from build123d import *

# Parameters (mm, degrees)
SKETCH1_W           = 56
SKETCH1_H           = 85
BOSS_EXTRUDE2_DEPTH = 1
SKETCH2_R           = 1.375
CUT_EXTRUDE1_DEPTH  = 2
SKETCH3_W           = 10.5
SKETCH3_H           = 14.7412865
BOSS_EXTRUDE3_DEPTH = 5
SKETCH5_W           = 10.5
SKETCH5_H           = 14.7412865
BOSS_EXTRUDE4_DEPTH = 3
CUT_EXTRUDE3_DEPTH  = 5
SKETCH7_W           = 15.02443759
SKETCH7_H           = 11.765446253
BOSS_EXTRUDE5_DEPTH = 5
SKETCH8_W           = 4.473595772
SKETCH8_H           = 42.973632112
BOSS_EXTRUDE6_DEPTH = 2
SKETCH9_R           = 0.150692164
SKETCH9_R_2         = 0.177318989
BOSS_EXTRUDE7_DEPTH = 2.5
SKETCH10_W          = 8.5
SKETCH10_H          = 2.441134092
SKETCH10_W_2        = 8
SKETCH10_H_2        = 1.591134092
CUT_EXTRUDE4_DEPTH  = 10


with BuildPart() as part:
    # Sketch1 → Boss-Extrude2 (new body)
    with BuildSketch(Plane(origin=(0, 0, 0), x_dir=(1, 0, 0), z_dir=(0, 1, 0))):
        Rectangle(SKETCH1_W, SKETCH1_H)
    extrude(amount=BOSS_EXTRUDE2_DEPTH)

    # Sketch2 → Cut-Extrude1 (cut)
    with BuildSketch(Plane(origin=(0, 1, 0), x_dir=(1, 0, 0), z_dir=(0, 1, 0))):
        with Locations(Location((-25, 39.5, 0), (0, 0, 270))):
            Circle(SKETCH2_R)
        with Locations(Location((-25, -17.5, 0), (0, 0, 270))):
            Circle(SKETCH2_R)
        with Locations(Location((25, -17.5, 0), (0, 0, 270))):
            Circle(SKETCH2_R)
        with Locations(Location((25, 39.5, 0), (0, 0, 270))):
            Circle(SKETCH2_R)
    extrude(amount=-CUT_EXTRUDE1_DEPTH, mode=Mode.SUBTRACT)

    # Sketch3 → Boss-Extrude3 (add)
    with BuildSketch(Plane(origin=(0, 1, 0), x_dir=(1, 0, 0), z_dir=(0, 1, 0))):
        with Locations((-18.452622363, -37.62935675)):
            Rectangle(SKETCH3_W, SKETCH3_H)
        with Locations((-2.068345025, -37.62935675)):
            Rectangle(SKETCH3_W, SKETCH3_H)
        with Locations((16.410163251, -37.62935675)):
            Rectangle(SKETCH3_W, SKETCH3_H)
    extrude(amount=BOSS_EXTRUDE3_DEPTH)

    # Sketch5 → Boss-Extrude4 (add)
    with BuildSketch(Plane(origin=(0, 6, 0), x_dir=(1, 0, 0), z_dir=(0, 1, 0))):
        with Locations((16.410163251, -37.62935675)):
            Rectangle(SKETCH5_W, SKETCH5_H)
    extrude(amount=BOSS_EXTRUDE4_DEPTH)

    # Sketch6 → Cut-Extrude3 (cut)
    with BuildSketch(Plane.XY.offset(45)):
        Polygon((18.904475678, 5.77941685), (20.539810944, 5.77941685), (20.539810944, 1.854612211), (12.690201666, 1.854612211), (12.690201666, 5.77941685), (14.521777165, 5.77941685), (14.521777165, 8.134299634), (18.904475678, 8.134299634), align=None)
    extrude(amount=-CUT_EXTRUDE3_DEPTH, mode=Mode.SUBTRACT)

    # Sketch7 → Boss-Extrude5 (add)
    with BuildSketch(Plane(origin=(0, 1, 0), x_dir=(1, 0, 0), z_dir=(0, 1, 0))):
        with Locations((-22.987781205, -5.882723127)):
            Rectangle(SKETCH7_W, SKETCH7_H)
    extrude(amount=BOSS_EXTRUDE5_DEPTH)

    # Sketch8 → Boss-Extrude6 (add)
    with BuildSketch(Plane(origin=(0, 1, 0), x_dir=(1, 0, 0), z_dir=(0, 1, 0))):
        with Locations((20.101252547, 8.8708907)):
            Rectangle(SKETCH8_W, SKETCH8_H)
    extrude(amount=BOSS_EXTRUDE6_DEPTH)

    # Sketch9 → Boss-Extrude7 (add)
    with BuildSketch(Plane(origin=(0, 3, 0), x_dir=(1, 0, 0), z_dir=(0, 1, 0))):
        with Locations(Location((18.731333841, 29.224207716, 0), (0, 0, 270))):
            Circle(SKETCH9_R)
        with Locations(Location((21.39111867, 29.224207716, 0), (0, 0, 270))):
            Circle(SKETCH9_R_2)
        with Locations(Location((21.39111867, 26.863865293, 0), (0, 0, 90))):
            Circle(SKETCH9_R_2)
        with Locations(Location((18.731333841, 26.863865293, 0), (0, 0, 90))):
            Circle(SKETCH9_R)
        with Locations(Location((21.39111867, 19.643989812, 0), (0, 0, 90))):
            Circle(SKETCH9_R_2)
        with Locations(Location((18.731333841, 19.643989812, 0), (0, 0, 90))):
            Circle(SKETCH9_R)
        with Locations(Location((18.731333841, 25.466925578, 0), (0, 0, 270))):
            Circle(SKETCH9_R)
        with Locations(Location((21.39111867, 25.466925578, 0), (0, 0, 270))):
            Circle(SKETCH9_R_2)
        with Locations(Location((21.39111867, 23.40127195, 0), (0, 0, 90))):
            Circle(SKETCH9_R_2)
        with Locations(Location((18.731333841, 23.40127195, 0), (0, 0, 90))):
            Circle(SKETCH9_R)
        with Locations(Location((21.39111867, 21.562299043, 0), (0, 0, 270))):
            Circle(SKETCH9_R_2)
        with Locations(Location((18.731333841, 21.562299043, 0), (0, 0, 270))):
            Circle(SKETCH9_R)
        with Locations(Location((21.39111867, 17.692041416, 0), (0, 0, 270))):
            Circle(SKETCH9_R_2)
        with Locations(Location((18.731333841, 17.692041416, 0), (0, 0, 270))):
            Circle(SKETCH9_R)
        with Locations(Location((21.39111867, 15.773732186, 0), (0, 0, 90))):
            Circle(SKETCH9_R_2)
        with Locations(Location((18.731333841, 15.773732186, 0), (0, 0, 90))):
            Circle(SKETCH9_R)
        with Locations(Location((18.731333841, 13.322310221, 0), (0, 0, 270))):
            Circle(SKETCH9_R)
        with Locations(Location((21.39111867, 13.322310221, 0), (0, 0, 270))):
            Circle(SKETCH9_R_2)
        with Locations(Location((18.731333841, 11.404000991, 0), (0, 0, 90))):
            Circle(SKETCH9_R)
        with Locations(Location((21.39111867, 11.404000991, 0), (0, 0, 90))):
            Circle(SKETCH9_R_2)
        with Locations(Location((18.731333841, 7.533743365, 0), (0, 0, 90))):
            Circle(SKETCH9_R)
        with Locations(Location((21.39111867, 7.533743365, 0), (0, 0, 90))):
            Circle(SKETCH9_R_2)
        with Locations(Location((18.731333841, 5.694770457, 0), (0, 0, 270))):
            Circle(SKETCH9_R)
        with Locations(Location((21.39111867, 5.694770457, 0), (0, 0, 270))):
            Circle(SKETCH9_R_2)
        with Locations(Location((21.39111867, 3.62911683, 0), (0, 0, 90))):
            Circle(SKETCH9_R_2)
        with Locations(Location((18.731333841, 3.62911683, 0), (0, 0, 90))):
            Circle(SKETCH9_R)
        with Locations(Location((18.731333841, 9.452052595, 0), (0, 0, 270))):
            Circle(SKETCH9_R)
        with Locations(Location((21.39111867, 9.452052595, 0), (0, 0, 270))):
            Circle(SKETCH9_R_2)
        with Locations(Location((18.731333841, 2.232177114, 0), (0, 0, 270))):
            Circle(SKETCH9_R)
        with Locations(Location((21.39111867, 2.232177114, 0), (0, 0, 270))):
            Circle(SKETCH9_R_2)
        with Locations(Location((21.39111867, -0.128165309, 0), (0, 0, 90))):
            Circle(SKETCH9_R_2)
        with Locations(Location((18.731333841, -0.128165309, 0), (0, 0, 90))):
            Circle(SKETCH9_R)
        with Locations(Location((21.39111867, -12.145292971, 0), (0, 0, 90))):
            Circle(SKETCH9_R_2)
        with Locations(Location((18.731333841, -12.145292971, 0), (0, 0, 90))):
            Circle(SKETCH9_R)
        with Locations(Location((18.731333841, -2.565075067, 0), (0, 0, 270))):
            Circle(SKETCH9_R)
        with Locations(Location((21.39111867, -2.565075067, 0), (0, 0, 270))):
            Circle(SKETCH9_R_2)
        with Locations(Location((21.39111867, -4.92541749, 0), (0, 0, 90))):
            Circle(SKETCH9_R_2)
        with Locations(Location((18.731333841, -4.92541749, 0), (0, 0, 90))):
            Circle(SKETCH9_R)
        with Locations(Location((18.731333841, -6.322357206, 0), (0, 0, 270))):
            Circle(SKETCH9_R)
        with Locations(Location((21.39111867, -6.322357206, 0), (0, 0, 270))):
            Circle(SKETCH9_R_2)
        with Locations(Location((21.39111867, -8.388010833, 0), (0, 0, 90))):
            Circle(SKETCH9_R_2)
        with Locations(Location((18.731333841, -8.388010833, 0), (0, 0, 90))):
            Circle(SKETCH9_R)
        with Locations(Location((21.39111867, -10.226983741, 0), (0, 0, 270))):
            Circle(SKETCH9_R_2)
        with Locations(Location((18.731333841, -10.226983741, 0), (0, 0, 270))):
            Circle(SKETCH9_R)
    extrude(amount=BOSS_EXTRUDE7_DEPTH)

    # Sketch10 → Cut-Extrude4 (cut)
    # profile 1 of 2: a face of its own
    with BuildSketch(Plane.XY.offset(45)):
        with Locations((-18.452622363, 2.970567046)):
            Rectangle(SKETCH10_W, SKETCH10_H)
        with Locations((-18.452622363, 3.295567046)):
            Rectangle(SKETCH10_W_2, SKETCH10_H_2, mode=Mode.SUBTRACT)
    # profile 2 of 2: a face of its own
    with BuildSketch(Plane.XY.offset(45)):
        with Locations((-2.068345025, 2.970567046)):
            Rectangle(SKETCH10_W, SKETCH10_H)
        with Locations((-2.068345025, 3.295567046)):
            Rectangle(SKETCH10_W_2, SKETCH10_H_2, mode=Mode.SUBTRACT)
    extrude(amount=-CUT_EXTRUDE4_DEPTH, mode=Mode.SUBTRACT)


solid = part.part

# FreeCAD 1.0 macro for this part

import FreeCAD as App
import Part
import Sketcher
Q = App.Units.Quantity

doc = App.newDocument("Part")
body = doc.addObject("PartDesign::Body", "Body")

# Sketch on XZ plane
sketch1 = body.newObject("Sketcher::SketchObject", "Sketch")
sketch1.AttachmentSupport = (doc.getObject("XZ_Plane"), [""])
sketch1.MapMode = "FlatFace"
sketch1.addGeometry([
    Part.LineSegment(App.Vector(-28, -42.5, 0), App.Vector(-28, 42.5, 0)),
    Part.LineSegment(App.Vector(-28, 42.5, 0), App.Vector(28, 42.5, 0)),
    Part.LineSegment(App.Vector(28, 42.5, 0), App.Vector(28, -42.5, 0)),
    Part.LineSegment(App.Vector(28, -42.5, 0), App.Vector(-28, -42.5, 0)),
], False)
sketch1.addConstraint([
    Sketcher.Constraint("Coincident", 0, 2, 1, 1),
    Sketcher.Constraint("Coincident", 1, 2, 2, 1),
    Sketcher.Constraint("Coincident", 2, 2, 3, 1),
    Sketcher.Constraint("Coincident", 3, 2, 0, 1),
    Sketcher.Constraint("Vertical", 0),
    Sketcher.Constraint("Horizontal", 1),
    Sketcher.Constraint("Vertical", 2),
    Sketcher.Constraint("Horizontal", 3),
    Sketcher.Constraint("Symmetric", 0, 2, 2, 2, -1, 1),
    Sketcher.Constraint("DistanceX", 1, 1, 1, 2, Q("56 mm")),
    Sketcher.Constraint("DistanceY", 0, 1, 0, 2, Q("85 mm")),
])
pad1 = body.newObject("PartDesign::Pad", "Pad")
pad1.Profile = sketch1
pad1.Length = 1
pad1.Reversed = True

# Sketch on XZ plane
sketch2 = body.newObject("Sketcher::SketchObject", "Sketch001")
sketch2.AttachmentSupport = (doc.getObject("XZ_Plane"), [""])
sketch2.MapMode = "FlatFace"
sketch2.AttachmentOffset = App.Placement(App.Vector(0, 0, -1), App.Rotation())
sketch2.addGeometry([
    Part.Circle(App.Vector(-25, -39.5, 0), App.Vector(0, 0, 1), 1.375),
    Part.Circle(App.Vector(-25, 17.5, 0), App.Vector(0, 0, 1), 1.375),
    Part.Circle(App.Vector(25, 17.5, 0), App.Vector(0, 0, 1), 1.375),
    Part.Circle(App.Vector(25, -39.5, 0), App.Vector(0, 0, 1), 1.375),
], False)
sketch2.addConstraint([
    Sketcher.Constraint("Equal", 0, 1),
    Sketcher.Constraint("Equal", 1, 2),
    Sketcher.Constraint("Equal", 2, 3),
    Sketcher.Constraint("Symmetric", 1, 3, 2, 3, -2),
    Sketcher.Constraint("Symmetric", 0, 3, 3, 3, -2),
    Sketcher.Constraint("Vertical", 0, 3, 1, 3),
    Sketcher.Constraint("Diameter", 0, Q("2.75 mm")),
    Sketcher.Constraint("DistanceX", 0, 3, -1, 1, Q("25 mm")),
    Sketcher.Constraint("DistanceY", 0, 3, 1, 3, Q("57 mm")),
    Sketcher.Constraint("DistanceY", 0, 3, -1, 1, Q("39.5 mm")),
])
pocket1 = body.newObject("PartDesign::Pocket", "Pocket")
pocket1.Profile = sketch2
pocket1.Length = 2
pocket1.Reversed = True

# Sketch on XZ plane
sketch3 = body.newObject("Sketcher::SketchObject", "Sketch002")
sketch3.AttachmentSupport = (doc.getObject("XZ_Plane"), [""])
sketch3.MapMode = "FlatFace"
sketch3.AttachmentOffset = App.Placement(App.Vector(0, 0, -1), App.Rotation())
sketch3.addGeometry([
    Part.LineSegment(App.Vector(-23.702622, 30.258713, 0), App.Vector(-23.702622, 45, 0)),  # 0
    Part.LineSegment(App.Vector(-23.702622, 45, 0), App.Vector(-13.202622, 45, 0)),  # 1
    Part.LineSegment(App.Vector(-13.202622, 45, 0), App.Vector(-13.202622, 30.258713, 0)),  # 2
    Part.LineSegment(App.Vector(-13.202622, 30.258713, 0), App.Vector(-23.702622, 30.258713, 0)),  # 3
    Part.LineSegment(App.Vector(-7.318345, 30.258713, 0), App.Vector(-7.318345, 45, 0)),  # 4
    Part.LineSegment(App.Vector(-7.318345, 45, 0), App.Vector(3.181655, 45, 0)),  # 5
    Part.LineSegment(App.Vector(3.181655, 45, 0), App.Vector(3.181655, 30.258713, 0)),  # 6
    Part.LineSegment(App.Vector(3.181655, 30.258713, 0), App.Vector(-7.318345, 30.258713, 0)),  # 7
    Part.LineSegment(App.Vector(11.160163, 30.258713, 0), App.Vector(11.160163, 45, 0)),  # 8
    Part.LineSegment(App.Vector(11.160163, 45, 0), App.Vector(21.660163, 45, 0)),  # 9
    Part.LineSegment(App.Vector(21.660163, 45, 0), App.Vector(21.660163, 30.258713, 0)),  # 10
    Part.LineSegment(App.Vector(21.660163, 30.258713, 0), App.Vector(11.160163, 30.258713, 0)),  # 11
], False)
sketch3.addConstraint([
    Sketcher.Constraint("Coincident", 0, 2, 1, 1),
    Sketcher.Constraint("Coincident", 1, 2, 2, 1),
    Sketcher.Constraint("Coincident", 2, 2, 3, 1),
    Sketcher.Constraint("Coincident", 3, 2, 0, 1),
    Sketcher.Constraint("Coincident", 4, 2, 5, 1),
    Sketcher.Constraint("Coincident", 5, 2, 6, 1),
    Sketcher.Constraint("Coincident", 6, 2, 7, 1),
    Sketcher.Constraint("Coincident", 7, 2, 4, 1),
    Sketcher.Constraint("Coincident", 8, 2, 9, 1),
    Sketcher.Constraint("Coincident", 9, 2, 10, 1),
    Sketcher.Constraint("Coincident", 10, 2, 11, 1),
    Sketcher.Constraint("Coincident", 11, 2, 8, 1),
    Sketcher.Constraint("Vertical", 0),
    Sketcher.Constraint("Horizontal", 1),
    Sketcher.Constraint("Vertical", 2),
    Sketcher.Constraint("Horizontal", 3),
    Sketcher.Constraint("Vertical", 4),
    Sketcher.Constraint("Horizontal", 5),
    Sketcher.Constraint("Vertical", 6),
    Sketcher.Constraint("Horizontal", 7),
    Sketcher.Constraint("Vertical", 8),
    Sketcher.Constraint("Horizontal", 9),
    Sketcher.Constraint("Vertical", 10),
    Sketcher.Constraint("Horizontal", 11),
    Sketcher.Constraint("Horizontal", 1, 2, 4, 2),
    Sketcher.Constraint("Horizontal", 3, 2, 6, 2),
    Sketcher.Constraint("Horizontal", 5, 2, 8, 2),
    Sketcher.Constraint("Horizontal", 7, 2, 10, 2),
    Sketcher.Constraint("Equal", 3, 5),
    Sketcher.Constraint("Equal", 7, 9),
    Sketcher.Constraint("DistanceX", 1, 1, 1, 2, Q("10.5 mm")),
    Sketcher.Constraint("DistanceY", -1, 1, 0, 2, Q("45 mm")),
    Sketcher.Constraint("DistanceY", 0, 1, 0, 2, Q("14.741287 mm")),
    Sketcher.Constraint("DistanceX", 5, 2, 8, 2, Q("7.978508 mm")),
    Sketcher.Constraint("DistanceX", 0, 2, -1, 1, Q("23.702622 mm")),
    Sketcher.Constraint("DistanceX", 4, 2, -1, 1, Q("7.318345 mm")),
])
pad2 = body.newObject("PartDesign::Pad", "Pad001")
pad2.Profile = sketch3
pad2.Length = 5
pad2.Reversed = True

# Sketch on XZ plane
sketch4 = body.newObject("Sketcher::SketchObject", "Sketch003")
sketch4.AttachmentSupport = (doc.getObject("XZ_Plane"), [""])
sketch4.MapMode = "FlatFace"
sketch4.AttachmentOffset = App.Placement(App.Vector(0, 0, -6), App.Rotation())
sketch4.addGeometry([
    Part.LineSegment(App.Vector(11.160163, 30.258713, 0), App.Vector(11.160163, 45, 0)),
    Part.LineSegment(App.Vector(11.160163, 45, 0), App.Vector(21.660163, 45, 0)),
    Part.LineSegment(App.Vector(21.660163, 45, 0), App.Vector(21.660163, 30.258713, 0)),
    Part.LineSegment(App.Vector(21.660163, 30.258713, 0), App.Vector(11.160163, 30.258713, 0)),
], False)
sketch4.addConstraint([
    Sketcher.Constraint("Coincident", 0, 2, 1, 1),
    Sketcher.Constraint("Coincident", 1, 2, 2, 1),
    Sketcher.Constraint("Coincident", 2, 2, 3, 1),
    Sketcher.Constraint("Coincident", 3, 2, 0, 1),
    Sketcher.Constraint("Vertical", 0),
    Sketcher.Constraint("Horizontal", 1),
    Sketcher.Constraint("Vertical", 2),
    Sketcher.Constraint("Horizontal", 3),
    Sketcher.Constraint("DistanceX", 1, 1, 1, 2, Q("10.5 mm")),
    Sketcher.Constraint("DistanceY", -1, 1, 0, 2, Q("45 mm")),
    Sketcher.Constraint("DistanceY", 0, 1, 0, 2, Q("14.741287 mm")),
    Sketcher.Constraint("DistanceX", -1, 1, 0, 2, Q("11.160163 mm")),
])
pad3 = body.newObject("PartDesign::Pad", "Pad002")
pad3.Profile = sketch4
pad3.Length = 3
pad3.Reversed = True

# Sketch on XY plane
sketch5 = body.newObject("Sketcher::SketchObject", "Sketch004")
sketch5.AttachmentSupport = (doc.getObject("XY_Plane"), [""])
sketch5.MapMode = "FlatFace"
sketch5.AttachmentOffset = App.Placement(App.Vector(0, 0, 45), App.Rotation())
sketch5.addGeometry([
    Part.LineSegment(App.Vector(20.539811, 5.779417, 0), App.Vector(18.904476, 5.779417, 0)),  # 0
    Part.LineSegment(App.Vector(18.904476, 5.779417, 0), App.Vector(18.904476, 8.1343, 0)),  # 1
    Part.LineSegment(App.Vector(18.904476, 8.1343, 0), App.Vector(14.521777, 8.1343, 0)),  # 2
    Part.LineSegment(App.Vector(14.521777, 8.1343, 0), App.Vector(14.521777, 5.779417, 0)),  # 3
    Part.LineSegment(App.Vector(14.521777, 5.779417, 0), App.Vector(12.690202, 5.779417, 0)),  # 4
    Part.LineSegment(App.Vector(12.690202, 5.779417, 0), App.Vector(12.690202, 1.854612, 0)),  # 5
    Part.LineSegment(App.Vector(12.690202, 1.854612, 0), App.Vector(20.539811, 1.854612, 0)),  # 6
    Part.LineSegment(App.Vector(20.539811, 1.854612, 0), App.Vector(20.539811, 5.779417, 0)),  # 7
], False)
sketch5.addConstraint([
    Sketcher.Constraint("Coincident", 0, 2, 1, 1),
    Sketcher.Constraint("Coincident", 1, 2, 2, 1),
    Sketcher.Constraint("Coincident", 2, 2, 3, 1),
    Sketcher.Constraint("Coincident", 3, 2, 4, 1),
    Sketcher.Constraint("Coincident", 4, 2, 5, 1),
    Sketcher.Constraint("Coincident", 5, 2, 6, 1),
    Sketcher.Constraint("Coincident", 6, 2, 7, 1),
    Sketcher.Constraint("Coincident", 7, 2, 0, 1),
    Sketcher.Constraint("Horizontal", 0),
    Sketcher.Constraint("Vertical", 1),
    Sketcher.Constraint("Horizontal", 2),
    Sketcher.Constraint("Vertical", 3),
    Sketcher.Constraint("Horizontal", 4),
    Sketcher.Constraint("Vertical", 5),
    Sketcher.Constraint("Horizontal", 6),
    Sketcher.Constraint("Vertical", 7),
    Sketcher.Constraint("Horizontal", 0, 2, 3, 2),
    Sketcher.Constraint("DistanceX", 2, 2, 2, 1, Q("4.382699 mm")),
    Sketcher.Constraint("DistanceX", 6, 1, 6, 2, Q("7.849609 mm")),
    Sketcher.Constraint("DistanceY", -1, 1, 1, 2, Q("8.1343 mm")),
    Sketcher.Constraint("DistanceX", -1, 1, 4, 2, Q("12.690202 mm")),
    Sketcher.Constraint("DistanceX", 0, 2, 0, 1, Q("1.635335 mm")),
    Sketcher.Constraint("DistanceY", 1, 1, 1, 2, Q("2.354883 mm")),
    Sketcher.Constraint("DistanceY", 5, 2, 5, 1, Q("3.924805 mm")),
])
pocket2 = body.newObject("PartDesign::Pocket", "Pocket001")
pocket2.Profile = sketch5
pocket2.Length = 5

# Sketch on XZ plane
sketch6 = body.newObject("Sketcher::SketchObject", "Sketch005")
sketch6.AttachmentSupport = (doc.getObject("XZ_Plane"), [""])
sketch6.MapMode = "FlatFace"
sketch6.AttachmentOffset = App.Placement(App.Vector(0, 0, -1), App.Rotation())
sketch6.addGeometry([
    Part.LineSegment(App.Vector(-30.5, 0, 0), App.Vector(-30.5, 11.765446, 0)),
    Part.LineSegment(App.Vector(-30.5, 11.765446, 0), App.Vector(-15.475562, 11.765446, 0)),
    Part.LineSegment(App.Vector(-15.475562, 11.765446, 0), App.Vector(-15.475562, 0, 0)),
    Part.LineSegment(App.Vector(-15.475562, 0, 0), App.Vector(-30.5, 0, 0)),
], False)
sketch6.addConstraint([
    Sketcher.Constraint("Coincident", 0, 2, 1, 1),
    Sketcher.Constraint("Coincident", 1, 2, 2, 1),
    Sketcher.Constraint("Coincident", 2, 2, 3, 1),
    Sketcher.Constraint("Coincident", 3, 2, 0, 1),
    Sketcher.Constraint("Vertical", 0),
    Sketcher.Constraint("Horizontal", 1),
    Sketcher.Constraint("Vertical", 2),
    Sketcher.Constraint("Horizontal", 3),
    Sketcher.Constraint("PointOnObject", 2, 2, -1),
    Sketcher.Constraint("DistanceX", 0, 2, -1, 1, Q("30.5 mm")),
    Sketcher.Constraint("DistanceX", 1, 1, 1, 2, Q("15.024438 mm")),
    Sketcher.Constraint("DistanceY", 0, 1, 0, 2, Q("11.765446 mm")),
])
pad4 = body.newObject("PartDesign::Pad", "Pad003")
pad4.Profile = sketch6
pad4.Length = 5
pad4.Reversed = True

# Sketch on XZ plane
sketch7 = body.newObject("Sketcher::SketchObject", "Sketch006")
sketch7.AttachmentSupport = (doc.getObject("XZ_Plane"), [""])
sketch7.MapMode = "FlatFace"
sketch7.AttachmentOffset = App.Placement(App.Vector(0, 0, -1), App.Rotation())
sketch7.addGeometry([
    Part.LineSegment(App.Vector(17.864455, -30.357707, 0), App.Vector(17.864455, 12.615925, 0)),
    Part.LineSegment(App.Vector(17.864455, 12.615925, 0), App.Vector(22.33805, 12.615925, 0)),
    Part.LineSegment(App.Vector(22.33805, 12.615925, 0), App.Vector(22.33805, -30.357707, 0)),
    Part.LineSegment(App.Vector(22.33805, -30.357707, 0), App.Vector(17.864455, -30.357707, 0)),
], False)
sketch7.addConstraint([
    Sketcher.Constraint("Coincident", 0, 2, 1, 1),
    Sketcher.Constraint("Coincident", 1, 2, 2, 1),
    Sketcher.Constraint("Coincident", 2, 2, 3, 1),
    Sketcher.Constraint("Coincident", 3, 2, 0, 1),
    Sketcher.Constraint("Vertical", 0),
    Sketcher.Constraint("Horizontal", 1),
    Sketcher.Constraint("Vertical", 2),
    Sketcher.Constraint("Horizontal", 3),
    Sketcher.Constraint("DistanceX", 1, 1, 1, 2, Q("4.473596 mm")),
    Sketcher.Constraint("DistanceY", 0, 1, 0, 2, Q("42.973632 mm")),
    Sketcher.Constraint("DistanceX", -1, 1, 1, 2, Q("22.33805 mm")),
    Sketcher.Constraint("DistanceY", -1, 1, 0, 2, Q("12.615925 mm")),
])
pad5 = body.newObject("PartDesign::Pad", "Pad004")
pad5.Profile = sketch7
pad5.Length = 2
pad5.Reversed = True

# Sketch on XZ plane
sketch8 = body.newObject("Sketcher::SketchObject", "Sketch007")
sketch8.AttachmentSupport = (doc.getObject("XZ_Plane"), [""])
sketch8.MapMode = "FlatFace"
sketch8.AttachmentOffset = App.Placement(App.Vector(0, 0, -3), App.Rotation())
sketch8.addGeometry([
    Part.Circle(App.Vector(18.731334, -29.224208, 0), App.Vector(0, 0, 1), 0.150692),  # 0
    Part.Circle(App.Vector(21.391119, -29.224208, 0), App.Vector(0, 0, 1), 0.177319),  # 1
    Part.Circle(App.Vector(21.391119, -26.863865, 0), App.Vector(0, 0, 1), 0.177319),  # 2
    Part.Circle(App.Vector(18.731334, -26.863865, 0), App.Vector(0, 0, 1), 0.150692),  # 3
    Part.Circle(App.Vector(21.391119, -19.64399, 0), App.Vector(0, 0, 1), 0.177319),  # 4
    Part.Circle(App.Vector(18.731334, -19.64399, 0), App.Vector(0, 0, 1), 0.150692),  # 5
    Part.Circle(App.Vector(18.731334, -25.466926, 0), App.Vector(0, 0, 1), 0.150692),  # 6
    Part.Circle(App.Vector(21.391119, -25.466926, 0), App.Vector(0, 0, 1), 0.177319),  # 7
    Part.Circle(App.Vector(21.391119, -23.401272, 0), App.Vector(0, 0, 1), 0.177319),  # 8
    Part.Circle(App.Vector(18.731334, -23.401272, 0), App.Vector(0, 0, 1), 0.150692),  # 9
    Part.Circle(App.Vector(21.391119, -21.562299, 0), App.Vector(0, 0, 1), 0.177319),  # 10
    Part.Circle(App.Vector(18.731334, -21.562299, 0), App.Vector(0, 0, 1), 0.150692),  # 11
    Part.Circle(App.Vector(21.391119, -17.692041, 0), App.Vector(0, 0, 1), 0.177319),  # 12
    Part.Circle(App.Vector(18.731334, -17.692041, 0), App.Vector(0, 0, 1), 0.150692),  # 13
    Part.Circle(App.Vector(21.391119, -15.773732, 0), App.Vector(0, 0, 1), 0.177319),  # 14
    Part.Circle(App.Vector(18.731334, -15.773732, 0), App.Vector(0, 0, 1), 0.150692),  # 15
    Part.Circle(App.Vector(18.731334, -13.32231, 0), App.Vector(0, 0, 1), 0.150692),  # 16
    Part.Circle(App.Vector(21.391119, -13.32231, 0), App.Vector(0, 0, 1), 0.177319),  # 17
    Part.Circle(App.Vector(18.731334, -11.404001, 0), App.Vector(0, 0, 1), 0.150692),  # 18
    Part.Circle(App.Vector(21.391119, -11.404001, 0), App.Vector(0, 0, 1), 0.177319),  # 19
    Part.Circle(App.Vector(18.731334, -7.533743, 0), App.Vector(0, 0, 1), 0.150692),  # 20
    Part.Circle(App.Vector(21.391119, -7.533743, 0), App.Vector(0, 0, 1), 0.177319),  # 21
    Part.Circle(App.Vector(18.731334, -5.69477, 0), App.Vector(0, 0, 1), 0.150692),  # 22
    Part.Circle(App.Vector(21.391119, -5.69477, 0), App.Vector(0, 0, 1), 0.177319),  # 23
    Part.Circle(App.Vector(21.391119, -3.629117, 0), App.Vector(0, 0, 1), 0.177319),  # 24
    Part.Circle(App.Vector(18.731334, -3.629117, 0), App.Vector(0, 0, 1), 0.150692),  # 25
    Part.Circle(App.Vector(18.731334, -9.452053, 0), App.Vector(0, 0, 1), 0.150692),  # 26
    Part.Circle(App.Vector(21.391119, -9.452053, 0), App.Vector(0, 0, 1), 0.177319),  # 27
    Part.Circle(App.Vector(18.731334, -2.232177, 0), App.Vector(0, 0, 1), 0.150692),  # 28
    Part.Circle(App.Vector(21.391119, -2.232177, 0), App.Vector(0, 0, 1), 0.177319),  # 29
    Part.Circle(App.Vector(21.391119, 0.128165, 0), App.Vector(0, 0, 1), 0.177319),  # 30
    Part.Circle(App.Vector(18.731334, 0.128165, 0), App.Vector(0, 0, 1), 0.150692),  # 31
    Part.Circle(App.Vector(21.391119, 12.145293, 0), App.Vector(0, 0, 1), 0.177319),  # 32
    Part.Circle(App.Vector(18.731334, 12.145293, 0), App.Vector(0, 0, 1), 0.150692),  # 33
    Part.Circle(App.Vector(18.731334, 2.565075, 0), App.Vector(0, 0, 1), 0.150692),  # 34
    Part.Circle(App.Vector(21.391119, 2.565075, 0), App.Vector(0, 0, 1), 0.177319),  # 35
    Part.Circle(App.Vector(21.391119, 4.925417, 0), App.Vector(0, 0, 1), 0.177319),  # 36
    Part.Circle(App.Vector(18.731334, 4.925417, 0), App.Vector(0, 0, 1), 0.150692),  # 37
    Part.Circle(App.Vector(18.731334, 6.322357, 0), App.Vector(0, 0, 1), 0.150692),  # 38
    Part.Circle(App.Vector(21.391119, 6.322357, 0), App.Vector(0, 0, 1), 0.177319),  # 39
    Part.Circle(App.Vector(21.391119, 8.388011, 0), App.Vector(0, 0, 1), 0.177319),  # 40
    Part.Circle(App.Vector(18.731334, 8.388011, 0), App.Vector(0, 0, 1), 0.150692),  # 41
    Part.Circle(App.Vector(21.391119, 10.226984, 0), App.Vector(0, 0, 1), 0.177319),  # 42
    Part.Circle(App.Vector(18.731334, 10.226984, 0), App.Vector(0, 0, 1), 0.150692),  # 43
], False)
sketch8.addConstraint([
    Sketcher.Constraint("Equal", 1, 2),
    Sketcher.Constraint("Equal", 0, 3),
    Sketcher.Constraint("Equal", 2, 4),
    Sketcher.Constraint("Equal", 3, 5),
    Sketcher.Constraint("Equal", 5, 6),
    Sketcher.Constraint("Equal", 4, 7),
    Sketcher.Constraint("Equal", 7, 8),
    Sketcher.Constraint("Equal", 6, 9),
    Sketcher.Constraint("Equal", 8, 10),
    Sketcher.Constraint("Equal", 9, 11),
    Sketcher.Constraint("Equal", 10, 12),
    Sketcher.Constraint("Equal", 11, 13),
    Sketcher.Constraint("Equal", 12, 14),
    Sketcher.Constraint("Equal", 13, 15),
    Sketcher.Constraint("Equal", 15, 16),
    Sketcher.Constraint("Equal", 14, 17),
    Sketcher.Constraint("Equal", 16, 18),
    Sketcher.Constraint("Equal", 17, 19),
    Sketcher.Constraint("Equal", 18, 20),
    Sketcher.Constraint("Equal", 19, 21),
    Sketcher.Constraint("Equal", 20, 22),
    Sketcher.Constraint("Equal", 21, 23),
    Sketcher.Constraint("Equal", 23, 24),
    Sketcher.Constraint("Equal", 22, 25),
    Sketcher.Constraint("Equal", 25, 26),
    Sketcher.Constraint("Equal", 24, 27),
    Sketcher.Constraint("Equal", 26, 28),
    Sketcher.Constraint("Equal", 27, 29),
    Sketcher.Constraint("Equal", 29, 30),
    Sketcher.Constraint("Equal", 28, 31),
    Sketcher.Constraint("Equal", 30, 32),
    Sketcher.Constraint("Equal", 31, 33),
    Sketcher.Constraint("Equal", 33, 34),
    Sketcher.Constraint("Equal", 32, 35),
    Sketcher.Constraint("Equal", 35, 36),
    Sketcher.Constraint("Equal", 34, 37),
    Sketcher.Constraint("Equal", 37, 38),
    Sketcher.Constraint("Equal", 36, 39),
    Sketcher.Constraint("Equal", 39, 40),
    Sketcher.Constraint("Equal", 38, 41),
    Sketcher.Constraint("Equal", 40, 42),
    Sketcher.Constraint("Equal", 41, 43),
    Sketcher.Constraint("Horizontal", 0, 3, 1, 3),
    Sketcher.Constraint("Horizontal", 2, 3, 3, 3),
    Sketcher.Constraint("Horizontal", 4, 3, 5, 3),
    Sketcher.Constraint("Horizontal", 6, 3, 7, 3),
    Sketcher.Constraint("Horizontal", 8, 3, 9, 3),
    Sketcher.Constraint("Horizontal", 10, 3, 11, 3),
    Sketcher.Constraint("Horizontal", 12, 3, 13, 3),
    Sketcher.Constraint("Horizontal", 14, 3, 15, 3),
    Sketcher.Constraint("Horizontal", 16, 3, 17, 3),
    Sketcher.Constraint("Horizontal", 18, 3, 19, 3),
    Sketcher.Constraint("Horizontal", 20, 3, 21, 3),
    Sketcher.Constraint("Horizontal", 22, 3, 23, 3),
    Sketcher.Constraint("Horizontal", 24, 3, 25, 3),
    Sketcher.Constraint("Horizontal", 26, 3, 27, 3),
    Sketcher.Constraint("Horizontal", 28, 3, 29, 3),
    Sketcher.Constraint("Horizontal", 30, 3, 31, 3),
    Sketcher.Constraint("Horizontal", 32, 3, 33, 3),
    Sketcher.Constraint("Horizontal", 34, 3, 35, 3),
    Sketcher.Constraint("Horizontal", 36, 3, 37, 3),
    Sketcher.Constraint("Horizontal", 38, 3, 39, 3),
    Sketcher.Constraint("Horizontal", 40, 3, 41, 3),
    Sketcher.Constraint("Horizontal", 42, 3, 43, 3),
    Sketcher.Constraint("Vertical", 1, 3, 2, 3),
    Sketcher.Constraint("Vertical", 0, 3, 3, 3),
    Sketcher.Constraint("Vertical", 2, 3, 4, 3),
    Sketcher.Constraint("Vertical", 3, 3, 5, 3),
    Sketcher.Constraint("Vertical", 5, 3, 6, 3),
    Sketcher.Constraint("Vertical", 4, 3, 7, 3),
    Sketcher.Constraint("Vertical", 7, 3, 8, 3),
    Sketcher.Constraint("Vertical", 6, 3, 9, 3),
    Sketcher.Constraint("Vertical", 8, 3, 10, 3),
    Sketcher.Constraint("Vertical", 9, 3, 11, 3),
    Sketcher.Constraint("Vertical", 10, 3, 12, 3),
    Sketcher.Constraint("Vertical", 11, 3, 13, 3),
    Sketcher.Constraint("Vertical", 12, 3, 14, 3),
    Sketcher.Constraint("Vertical", 13, 3, 15, 3),
    Sketcher.Constraint("Vertical", 15, 3, 16, 3),
    Sketcher.Constraint("Vertical", 14, 3, 17, 3),
    Sketcher.Constraint("Vertical", 16, 3, 18, 3),
    Sketcher.Constraint("Vertical", 17, 3, 19, 3),
    Sketcher.Constraint("Vertical", 18, 3, 20, 3),
    Sketcher.Constraint("Vertical", 19, 3, 21, 3),
    Sketcher.Constraint("Vertical", 20, 3, 22, 3),
    Sketcher.Constraint("Vertical", 21, 3, 23, 3),
    Sketcher.Constraint("Vertical", 23, 3, 24, 3),
    Sketcher.Constraint("Vertical", 22, 3, 25, 3),
    Sketcher.Constraint("Vertical", 25, 3, 26, 3),
    Sketcher.Constraint("Vertical", 24, 3, 27, 3),
    Sketcher.Constraint("Vertical", 26, 3, 28, 3),
    Sketcher.Constraint("Vertical", 27, 3, 29, 3),
    Sketcher.Constraint("Vertical", 29, 3, 30, 3),
    Sketcher.Constraint("Vertical", 28, 3, 31, 3),
    Sketcher.Constraint("Vertical", 30, 3, 32, 3),
    Sketcher.Constraint("Vertical", 31, 3, 33, 3),
    Sketcher.Constraint("Vertical", 33, 3, 34, 3),
    Sketcher.Constraint("Vertical", 32, 3, 35, 3),
    Sketcher.Constraint("Vertical", 35, 3, 36, 3),
    Sketcher.Constraint("Vertical", 34, 3, 37, 3),
    Sketcher.Constraint("Vertical", 37, 3, 38, 3),
    Sketcher.Constraint("Vertical", 36, 3, 39, 3),
    Sketcher.Constraint("Vertical", 39, 3, 40, 3),
    Sketcher.Constraint("Vertical", 38, 3, 41, 3),
    Sketcher.Constraint("Vertical", 40, 3, 42, 3),
    Sketcher.Constraint("Vertical", 41, 3, 43, 3),
    Sketcher.Constraint("Diameter", 0, Q("0.301384 mm")),
    Sketcher.Constraint("Diameter", 1, Q("0.354638 mm")),
    Sketcher.Constraint("DistanceY", 18, 3, -1, 1, Q("11.404001 mm")),
    Sketcher.Constraint("DistanceY", 10, 3, -1, 1, Q("21.562299 mm")),
    Sketcher.Constraint("DistanceX", -1, 1, 1, 3, Q("21.391119 mm")),
    Sketcher.Constraint("DistanceY", 4, 3, -1, 1, Q("19.64399 mm")),
    Sketcher.Constraint("DistanceY", 8, 3, -1, 1, Q("23.401272 mm")),
    Sketcher.Constraint("DistanceY", 12, 3, -1, 1, Q("17.692041 mm")),
    Sketcher.Constraint("DistanceY", 16, 3, -1, 1, Q("13.32231 mm")),
    Sketcher.Constraint("DistanceY", 22, 3, -1, 1, Q("5.69477 mm")),
    Sketcher.Constraint("DistanceY", -1, 1, 40, 3, Q("8.388011 mm")),
    Sketcher.Constraint("DistanceY", 3, 3, 6, 3, Q("1.39694 mm")),
    Sketcher.Constraint("DistanceY", 12, 3, 14, 3, Q("1.918309 mm")),
    Sketcher.Constraint("DistanceY", 15, 3, 20, 3, Q("8.239989 mm")),
    Sketcher.Constraint("DistanceY", 26, 3, 20, 3, Q("1.918309 mm")),
    Sketcher.Constraint("DistanceY", 25, 3, 28, 3, Q("1.39694 mm")),
    Sketcher.Constraint("DistanceY", 29, 3, 32, 3, Q("14.37747 mm")),
    Sketcher.Constraint("DistanceY", 31, 3, 34, 3, Q("2.43691 mm")),
    Sketcher.Constraint("DistanceY", 25, 3, 34, 3, Q("6.194192 mm")),
    Sketcher.Constraint("DistanceY", 37, 3, 38, 3, Q("1.39694 mm")),
    Sketcher.Constraint("DistanceY", 42, 3, 32, 3, Q("1.918309 mm")),
    Sketcher.Constraint("DistanceX", -1, 1, 0, 3, Q("18.731334 mm")),
    Sketcher.Constraint("DistanceY", 0, 3, -1, 1, Q("29.224208 mm")),
    Sketcher.Constraint("DistanceY", 2, 3, -1, 1, Q("26.863865 mm")),
    Sketcher.Constraint("DistanceY", 24, 3, -1, 1, Q("3.629117 mm")),
    Sketcher.Constraint("DistanceY", -1, 1, 36, 3, Q("4.925417 mm")),
])
pad6 = body.newObject("PartDesign::Pad", "Pad005")
pad6.Profile = sketch8
pad6.Length = 2.5
pad6.Reversed = True

# Sketch on XY plane
sketch9 = body.newObject("Sketcher::SketchObject", "Sketch008")
sketch9.AttachmentSupport = (doc.getObject("XY_Plane"), [""])
sketch9.MapMode = "FlatFace"
sketch9.AttachmentOffset = App.Placement(App.Vector(0, 0, 45), App.Rotation())
sketch9.addGeometry([
    Part.LineSegment(App.Vector(-22.702622, 4.191134, 0), App.Vector(-22.702622, 1.75, 0)),  # 0
    Part.LineSegment(App.Vector(-22.702622, 1.75, 0), App.Vector(-14.202622, 1.75, 0)),  # 1
    Part.LineSegment(App.Vector(-14.202622, 1.75, 0), App.Vector(-14.202622, 4.191134, 0)),  # 2
    Part.LineSegment(App.Vector(-14.202622, 4.191134, 0), App.Vector(-22.702622, 4.191134, 0)),  # 3
    Part.LineSegment(App.Vector(-14.452622, 2.5, 0), App.Vector(-22.452622, 2.5, 0)),  # 4
    Part.LineSegment(App.Vector(-22.452622, 2.5, 0), App.Vector(-22.452622, 4.091134, 0)),  # 5
    Part.LineSegment(App.Vector(-22.452622, 4.091134, 0), App.Vector(-14.452622, 4.091134, 0)),  # 6
    Part.LineSegment(App.Vector(-14.452622, 4.091134, 0), App.Vector(-14.452622, 2.5, 0)),  # 7
    Part.LineSegment(App.Vector(-6.318345, 4.191134, 0), App.Vector(-6.318345, 1.75, 0)),  # 8
    Part.LineSegment(App.Vector(-6.318345, 1.75, 0), App.Vector(2.181655, 1.75, 0)),  # 9
    Part.LineSegment(App.Vector(2.181655, 1.75, 0), App.Vector(2.181655, 4.191134, 0)),  # 10
    Part.LineSegment(App.Vector(2.181655, 4.191134, 0), App.Vector(-6.318345, 4.191134, 0)),  # 11
    Part.LineSegment(App.Vector(1.931655, 2.5, 0), App.Vector(-6.068345, 2.5, 0)),  # 12
    Part.LineSegment(App.Vector(-6.068345, 2.5, 0), App.Vector(-6.068345, 4.091134, 0)),  # 13
    Part.LineSegment(App.Vector(-6.068345, 4.091134, 0), App.Vector(1.931655, 4.091134, 0)),  # 14
    Part.LineSegment(App.Vector(1.931655, 4.091134, 0), App.Vector(1.931655, 2.5, 0)),  # 15
], False)
sketch9.addConstraint([
    Sketcher.Constraint("Coincident", 0, 2, 1, 1),
    Sketcher.Constraint("Coincident", 1, 2, 2, 1),
    Sketcher.Constraint("Coincident", 2, 2, 3, 1),
    Sketcher.Constraint("Coincident", 3, 2, 0, 1),
    Sketcher.Constraint("Coincident", 4, 2, 5, 1),
    Sketcher.Constraint("Coincident", 5, 2, 6, 1),
    Sketcher.Constraint("Coincident", 6, 2, 7, 1),
    Sketcher.Constraint("Coincident", 7, 2, 4, 1),
    Sketcher.Constraint("Coincident", 8, 2, 9, 1),
    Sketcher.Constraint("Coincident", 9, 2, 10, 1),
    Sketcher.Constraint("Coincident", 10, 2, 11, 1),
    Sketcher.Constraint("Coincident", 11, 2, 8, 1),
    Sketcher.Constraint("Coincident", 12, 2, 13, 1),
    Sketcher.Constraint("Coincident", 13, 2, 14, 1),
    Sketcher.Constraint("Coincident", 14, 2, 15, 1),
    Sketcher.Constraint("Coincident", 15, 2, 12, 1),
    Sketcher.Constraint("Vertical", 0),
    Sketcher.Constraint("Horizontal", 1),
    Sketcher.Constraint("Vertical", 2),
    Sketcher.Constraint("Horizontal", 3),
    Sketcher.Constraint("Horizontal", 4),
    Sketcher.Constraint("Vertical", 5),
    Sketcher.Constraint("Horizontal", 6),
    Sketcher.Constraint("Vertical", 7),
    Sketcher.Constraint("Vertical", 8),
    Sketcher.Constraint("Horizontal", 9),
    Sketcher.Constraint("Vertical", 10),
    Sketcher.Constraint("Horizontal", 11),
    Sketcher.Constraint("Horizontal", 12),
    Sketcher.Constraint("Vertical", 13),
    Sketcher.Constraint("Horizontal", 14),
    Sketcher.Constraint("Vertical", 15),
    Sketcher.Constraint("Horizontal", 1, 2, 8, 2),
    Sketcher.Constraint("Horizontal", 3, 2, 10, 2),
    Sketcher.Constraint("Horizontal", 7, 2, 12, 2),
    Sketcher.Constraint("Horizontal", 6, 2, 13, 2),
    Sketcher.Constraint("Equal", 3, 9),
    Sketcher.Constraint("Equal", 6, 12),
    Sketcher.Constraint("DistanceX", 4, 2, 4, 1, Q("8 mm")),
    Sketcher.Constraint("DistanceX", 1, 1, 1, 2, Q("8.5 mm")),
    Sketcher.Constraint("DistanceY", -1, 1, 4, 2, Q("2.5 mm")),
    Sketcher.Constraint("DistanceY", 5, 2, 3, 2, Q("0.1 mm")),
    Sketcher.Constraint("DistanceY", -1, 1, 0, 2, Q("1.75 mm")),
    Sketcher.Constraint("DistanceX", 0, 2, 4, 2, Q("0.25 mm")),
    Sketcher.Constraint("DistanceX", 8, 2, 12, 2, Q("0.25 mm")),
    Sketcher.Constraint("DistanceY", 0, 2, 0, 1, Q("2.441134 mm")),
    Sketcher.Constraint("DistanceX", 0, 2, -1, 1, Q("22.702622 mm")),
    Sketcher.Constraint("DistanceX", 8, 2, -1, 1, Q("6.318345 mm")),
])
pocket3 = body.newObject("PartDesign::Pocket", "Pocket002")
pocket3.Profile = sketch9
pocket3.Length = 10

doc.recompute()
